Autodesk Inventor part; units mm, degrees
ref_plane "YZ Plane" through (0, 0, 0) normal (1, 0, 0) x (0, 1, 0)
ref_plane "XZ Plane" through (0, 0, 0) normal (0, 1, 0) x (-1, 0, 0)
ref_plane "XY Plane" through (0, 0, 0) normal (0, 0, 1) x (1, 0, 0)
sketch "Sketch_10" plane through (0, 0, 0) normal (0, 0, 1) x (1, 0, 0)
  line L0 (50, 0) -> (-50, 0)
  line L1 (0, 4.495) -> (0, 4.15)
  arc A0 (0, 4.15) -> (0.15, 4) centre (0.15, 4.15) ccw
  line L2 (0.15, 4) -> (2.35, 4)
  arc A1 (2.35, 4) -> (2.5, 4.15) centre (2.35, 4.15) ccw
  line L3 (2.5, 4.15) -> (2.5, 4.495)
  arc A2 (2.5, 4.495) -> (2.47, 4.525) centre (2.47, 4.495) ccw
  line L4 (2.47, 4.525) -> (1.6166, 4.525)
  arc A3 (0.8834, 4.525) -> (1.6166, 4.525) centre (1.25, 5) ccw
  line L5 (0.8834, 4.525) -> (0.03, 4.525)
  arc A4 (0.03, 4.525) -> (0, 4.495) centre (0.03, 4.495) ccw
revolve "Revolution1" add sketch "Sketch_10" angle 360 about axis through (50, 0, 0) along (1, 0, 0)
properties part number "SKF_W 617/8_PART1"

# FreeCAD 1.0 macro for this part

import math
import FreeCAD as App
import Part
import Sketcher
from FreeCAD import Vector
Q = App.Units.Quantity

doc = App.newDocument("Part")
body = doc.addObject("PartDesign::Body", "Body")

sketch1 = body.newObject("Sketcher::SketchObject", "Sketch")
sketch1.AttachmentSupport = (doc.getObject("XY_Plane"), [""])
sketch1.MapMode = "FlatFace"
sketch1.addGeometry([
    Part.ArcOfCircle(Part.Circle(Vector(0.03, 4.495, 0), Vector(0, 0, 1), 0.03), math.radians(90), math.radians(180)),
    Part.LineSegment(Vector(0, 4.495, 0), Vector(0, 4.15, 0)),
    Part.ArcOfCircle(Part.Circle(Vector(0.15, 4.15, 0), Vector(0, 0, 1), 0.15), math.radians(180), math.radians(270)),
    Part.LineSegment(Vector(0.15, 4, 0), Vector(2.35, 4, 0)),
    Part.ArcOfCircle(Part.Circle(Vector(2.35, 4.15, 0), Vector(0, 0, 1), 0.15), math.radians(-90), math.radians(0)),
    Part.LineSegment(Vector(2.5, 4.15, 0), Vector(2.5, 4.495, 0)),
    Part.ArcOfCircle(Part.Circle(Vector(2.47, 4.495, 0), Vector(0, 0, 1), 0.03), math.radians(0), math.radians(90)),
    Part.LineSegment(Vector(2.47, 4.525, 0), Vector(1.617, 4.525, 0)),
    Part.ArcOfCircle(Part.Circle(Vector(1.25, 5, 0), Vector(0, 0, 1), 0.6), math.radians(-128), math.radians(-52)),
    Part.LineSegment(Vector(0.883, 4.525, 0), Vector(0.03, 4.525, 0)),
], False)
sketch1.addConstraint([
    Sketcher.Constraint("Tangent", 0, 2, 1, 1),
    Sketcher.Constraint("Tangent", 1, 2, 2, 1),
    Sketcher.Constraint("Tangent", 2, 2, 3, 1),
    Sketcher.Constraint("Tangent", 3, 2, 4, 1),
    Sketcher.Constraint("Tangent", 4, 2, 5, 1),
    Sketcher.Constraint("Tangent", 5, 2, 6, 1),
    Sketcher.Constraint("Tangent", 6, 2, 7, 1),
    Sketcher.Constraint("Coincident", 7, 2, 8, 2),
    Sketcher.Constraint("Coincident", 8, 1, 9, 1),
    Sketcher.Constraint("Tangent", 9, 2, 0, 1),
    Sketcher.Constraint("Vertical", 1),
    Sketcher.Constraint("Horizontal", 3),
    Sketcher.Constraint("Vertical", 5),
    Sketcher.Constraint("Horizontal", 7),
    Sketcher.Constraint("Horizontal", 9),
    Sketcher.Constraint("Equal", 2, 4),
    Sketcher.Constraint("Equal", 0, 6),
    Sketcher.Constraint("PointOnObject", 0, 2, -2),
    Sketcher.Constraint("Horizontal", 0, 3, 6, 3),
    Sketcher.Constraint("Equal", 7, 9),
    Sketcher.Constraint("Radius", 8, Q("0.6 mm")),
    Sketcher.Constraint("Radius", 0, Q("0.03 mm")),
    Sketcher.Constraint("Radius", 2, Q("0.15 mm")),
    Sketcher.Constraint("DistanceX", 3, 1, 3, 2, Q("2.2 mm")),
    Sketcher.Constraint("DistanceY", -1, 1, 8, 3, Q("5 mm")),
    Sketcher.Constraint("DistanceY", -1, 1, 2, 2, Q("4 mm")),
    Sketcher.Constraint("DistanceY", 1, 2, 1, 1, Q("0.345 mm")),
])
revolution = body.newObject("PartDesign::Revolution", "Revolution")
revolution.Profile = sketch1
revolution.ReferenceAxis = (sketch1, ["H_Axis"])
revolution.Angle = 360

doc.recompute()
